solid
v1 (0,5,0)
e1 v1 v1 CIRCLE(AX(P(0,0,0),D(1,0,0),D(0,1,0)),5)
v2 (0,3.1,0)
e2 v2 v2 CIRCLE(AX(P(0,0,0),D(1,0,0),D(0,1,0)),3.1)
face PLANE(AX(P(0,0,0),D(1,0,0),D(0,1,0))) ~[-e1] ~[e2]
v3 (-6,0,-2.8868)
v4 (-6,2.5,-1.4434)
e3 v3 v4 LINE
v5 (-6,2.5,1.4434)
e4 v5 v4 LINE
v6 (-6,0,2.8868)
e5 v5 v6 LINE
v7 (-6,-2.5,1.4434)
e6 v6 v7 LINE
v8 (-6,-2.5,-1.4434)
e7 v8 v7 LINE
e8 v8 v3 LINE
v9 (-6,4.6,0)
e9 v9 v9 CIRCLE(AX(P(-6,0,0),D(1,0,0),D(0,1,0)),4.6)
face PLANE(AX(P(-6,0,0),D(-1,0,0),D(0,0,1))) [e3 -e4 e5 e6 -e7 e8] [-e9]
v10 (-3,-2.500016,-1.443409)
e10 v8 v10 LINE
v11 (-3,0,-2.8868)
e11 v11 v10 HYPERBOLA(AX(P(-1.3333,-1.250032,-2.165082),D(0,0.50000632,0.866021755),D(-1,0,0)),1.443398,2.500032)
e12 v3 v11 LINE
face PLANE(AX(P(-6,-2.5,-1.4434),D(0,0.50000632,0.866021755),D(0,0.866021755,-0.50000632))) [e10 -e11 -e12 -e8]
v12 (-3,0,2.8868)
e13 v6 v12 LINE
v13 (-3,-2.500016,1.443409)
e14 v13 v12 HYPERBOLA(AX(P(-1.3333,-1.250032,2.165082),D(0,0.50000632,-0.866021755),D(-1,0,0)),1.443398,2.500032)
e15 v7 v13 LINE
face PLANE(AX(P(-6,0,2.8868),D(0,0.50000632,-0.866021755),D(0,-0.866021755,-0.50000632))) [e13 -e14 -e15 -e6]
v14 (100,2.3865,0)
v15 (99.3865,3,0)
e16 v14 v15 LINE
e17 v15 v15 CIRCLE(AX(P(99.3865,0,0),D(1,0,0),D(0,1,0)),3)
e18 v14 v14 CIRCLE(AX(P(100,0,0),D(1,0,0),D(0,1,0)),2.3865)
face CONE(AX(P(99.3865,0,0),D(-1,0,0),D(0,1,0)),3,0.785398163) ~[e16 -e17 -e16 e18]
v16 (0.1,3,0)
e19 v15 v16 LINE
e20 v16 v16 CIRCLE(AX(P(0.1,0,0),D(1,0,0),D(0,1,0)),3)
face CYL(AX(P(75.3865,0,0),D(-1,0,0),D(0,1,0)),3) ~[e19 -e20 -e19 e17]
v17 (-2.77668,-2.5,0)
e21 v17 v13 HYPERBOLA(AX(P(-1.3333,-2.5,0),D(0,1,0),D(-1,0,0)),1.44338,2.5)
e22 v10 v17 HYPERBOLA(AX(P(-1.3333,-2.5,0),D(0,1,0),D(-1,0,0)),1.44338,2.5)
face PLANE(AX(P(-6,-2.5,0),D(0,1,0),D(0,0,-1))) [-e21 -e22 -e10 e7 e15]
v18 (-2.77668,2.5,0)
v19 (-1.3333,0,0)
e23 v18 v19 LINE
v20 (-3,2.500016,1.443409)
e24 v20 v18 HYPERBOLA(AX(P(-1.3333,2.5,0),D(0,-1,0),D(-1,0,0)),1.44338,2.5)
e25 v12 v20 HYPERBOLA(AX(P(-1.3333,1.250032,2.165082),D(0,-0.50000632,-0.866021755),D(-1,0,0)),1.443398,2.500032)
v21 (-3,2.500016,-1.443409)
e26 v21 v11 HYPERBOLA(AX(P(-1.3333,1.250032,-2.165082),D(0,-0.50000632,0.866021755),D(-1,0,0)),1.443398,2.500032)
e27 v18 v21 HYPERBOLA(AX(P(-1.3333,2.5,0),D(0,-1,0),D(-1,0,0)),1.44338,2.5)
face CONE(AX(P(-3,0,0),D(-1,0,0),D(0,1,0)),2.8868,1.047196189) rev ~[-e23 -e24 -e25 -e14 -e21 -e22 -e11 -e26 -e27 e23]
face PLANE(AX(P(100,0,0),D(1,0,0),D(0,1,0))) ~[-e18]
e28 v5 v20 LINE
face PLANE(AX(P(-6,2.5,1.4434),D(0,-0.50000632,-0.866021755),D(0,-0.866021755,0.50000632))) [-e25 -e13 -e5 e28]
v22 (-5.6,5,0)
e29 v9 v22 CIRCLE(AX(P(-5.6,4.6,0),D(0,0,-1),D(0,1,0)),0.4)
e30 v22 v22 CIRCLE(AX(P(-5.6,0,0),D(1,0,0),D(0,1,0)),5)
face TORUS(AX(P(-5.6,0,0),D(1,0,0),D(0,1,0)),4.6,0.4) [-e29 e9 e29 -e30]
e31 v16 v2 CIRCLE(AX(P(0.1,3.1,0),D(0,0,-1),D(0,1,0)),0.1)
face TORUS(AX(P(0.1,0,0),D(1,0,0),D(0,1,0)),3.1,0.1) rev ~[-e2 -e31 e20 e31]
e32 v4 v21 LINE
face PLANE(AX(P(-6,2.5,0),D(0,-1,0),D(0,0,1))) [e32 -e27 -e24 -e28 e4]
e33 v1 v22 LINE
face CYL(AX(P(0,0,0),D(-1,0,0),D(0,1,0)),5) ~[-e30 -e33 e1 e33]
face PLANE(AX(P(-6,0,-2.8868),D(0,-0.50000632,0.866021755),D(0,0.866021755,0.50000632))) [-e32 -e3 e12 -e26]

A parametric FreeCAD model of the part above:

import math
import FreeCAD as App
import Part
import Sketcher
from FreeCAD import Vector
Q = App.Units.Quantity


def edges_at(feature, points):
    """Names of the edges that pass closest to the given points."""
    edges = feature.Shape.Edges
    near = lambda p: min(range(len(edges)), key=lambda i: edges[i].distToShape(Part.Vertex(*p))[0])
    return sorted({f"Edge{near(p) + 1}" for p in points})

doc = App.newDocument("Part")
body = doc.addObject("PartDesign::Body", "Body")

sketch1 = body.newObject("Sketcher::SketchObject", "Sketch")
sketch1.AttachmentSupport = (doc.getObject("XY_Plane"), [""])
sketch1.MapMode = "FlatFace"
sketch1.addGeometry(Part.LineSegment(Vector(-3, 2.9, 0), Vector(-1.3, 0, 0)), False)
sketch1.addGeometry(Part.LineSegment(Vector(-1.3, 0, 0), Vector(100, 0, 0)), False)
sketch1.addGeometry(Part.LineSegment(Vector(100, 0, 0), Vector(100, 3, 0)), False)
sketch1.addGeometry(Part.LineSegment(Vector(100, 3, 0), Vector(0, 3, 0)), False)
sketch1.addGeometry(Part.LineSegment(Vector(0, 3, 0), Vector(0, 5, 0)), False)
sketch1.addGeometry(Part.LineSegment(Vector(0, 5, 0), Vector(-6, 5, 0)), False)
sketch1.addGeometry(Part.LineSegment(Vector(-6, 5, 0), Vector(-6, 2.9, 0)), False)
sketch1.addGeometry(Part.LineSegment(Vector(-6, 2.9, 0), Vector(-3, 2.9, 0)), False)
sketch1.addConstraint(Sketcher.Constraint("Coincident", 0, 2, 1, 1))
sketch1.addConstraint(Sketcher.Constraint("Coincident", 1, 2, 2, 1))
sketch1.addConstraint(Sketcher.Constraint("Coincident", 2, 2, 3, 1))
sketch1.addConstraint(Sketcher.Constraint("Coincident", 3, 2, 4, 1))
sketch1.addConstraint(Sketcher.Constraint("Coincident", 4, 2, 5, 1))
sketch1.addConstraint(Sketcher.Constraint("Coincident", 5, 2, 6, 1))
sketch1.addConstraint(Sketcher.Constraint("Coincident", 6, 2, 7, 1))
sketch1.addConstraint(Sketcher.Constraint("Coincident", 7, 2, 0, 1))
sketch1.addConstraint(Sketcher.Constraint("Horizontal", 1))
sketch1.addConstraint(Sketcher.Constraint("Vertical", 2))
sketch1.addConstraint(Sketcher.Constraint("Horizontal", 3))
sketch1.addConstraint(Sketcher.Constraint("Vertical", 4))
sketch1.addConstraint(Sketcher.Constraint("Horizontal", 5))
sketch1.addConstraint(Sketcher.Constraint("Vertical", 6))
sketch1.addConstraint(Sketcher.Constraint("Horizontal", 7))
sketch1.addConstraint(Sketcher.Constraint("PointOnObject", 0, 2, -1))
sketch1.addConstraint(Sketcher.Constraint("PointOnObject", 3, 2, -2))
sketch1.addConstraint(Sketcher.Constraint("Equal", 7, 2))
sketch1.addConstraint(Sketcher.Constraint("DistanceX", 3, 2, 3, 1, 100.0))
sketch1.addConstraint(Sketcher.Constraint("DistanceX", 5, 2, 5, 1, 6.0))
sketch1.addConstraint(Sketcher.Constraint("DistanceX", 7, 1, 7, 2, 3.0))
sketch1.addConstraint(Sketcher.Constraint("Angle", 0, Q("-60 deg")))
sketch1.addConstraint(Sketcher.Constraint("DistanceY", 4, 1, 4, 2, 2.0))
sketch1.addConstraint(Sketcher.Constraint("DistanceX", 1, 1, 1, 2, 101.3333))
revolution = body.newObject("PartDesign::Revolution", "Revolution")
revolution.Profile = sketch1
revolution.ReferenceAxis = (sketch1, ["H_Axis"])
revolution.Angle = 360

sketch2 = body.newObject("Sketcher::SketchObject", "Sketch001")
sketch2.AttachmentSupport = (doc.getObject("YZ_Plane"), [""])
sketch2.MapMode = "FlatFace"
sketch2.AttachmentOffset = App.Placement(Vector(0, 0, -6), App.Rotation())
sketch2.addGeometry(Part.LineSegment(Vector(2.5, 1.4, 0), Vector(0, 2.9, 0)), False)
sketch2.addGeometry(Part.ArcOfCircle(Part.Circle(Vector(0, 0, 0), Vector(0, 0, 1), 2.9), math.radians(30), math.radians(90)), False)
sketch2.addGeometry(Part.ArcOfCircle(Part.Circle(Vector(0, 0, 0), Vector(0, 0, 1), 2.9), math.radians(90), math.radians(150)), False)
sketch2.addGeometry(Part.LineSegment(Vector(0, 2.9, 0), Vector(-2.5, 1.4, 0)), False)
sketch2.addGeometry(Part.ArcOfCircle(Part.Circle(Vector(0, 0, 0), Vector(0, 0, 1), 2.9), math.radians(-30), math.radians(30)), False)
sketch2.addGeometry(Part.LineSegment(Vector(2.5, 1.4, 0), Vector(2.5, -1.4, 0)), False)
sketch2.addGeometry(Part.LineSegment(Vector(-2.5, 1.4, 0), Vector(-2.5, -1.4, 0)), False)
sketch2.addGeometry(Part.ArcOfCircle(Part.Circle(Vector(0, 0, 0), Vector(0, 0, 1), 2.9), math.radians(150), math.radians(210)), False)
sketch2.addGeometry(Part.LineSegment(Vector(-2.5, -1.4, 0), Vector(0, -2.9, 0)), False)
sketch2.addGeometry(Part.ArcOfCircle(Part.Circle(Vector(0, 0, 0), Vector(0, 0, 1), 2.9), math.radians(-150), math.radians(-90)), False)
sketch2.addGeometry(Part.ArcOfCircle(Part.Circle(Vector(0, 0, 0), Vector(0, 0, 1), 2.9), math.radians(-90), math.radians(-30)), False)
sketch2.addGeometry(Part.LineSegment(Vector(0, -2.9, 0), Vector(2.5, -1.4, 0)), False)
sketch2.addConstraint(Sketcher.Constraint("Coincident", 0, 1, 1, 1))
sketch2.addConstraint(Sketcher.Constraint("Coincident", 1, 2, 0, 2))
sketch2.addConstraint(Sketcher.Constraint("Coincident", 2, 1, 3, 1))
sketch2.addConstraint(Sketcher.Constraint("Coincident", 3, 2, 2, 2))
sketch2.addConstraint(Sketcher.Constraint("Coincident", 4, 1, 5, 2))
sketch2.addConstraint(Sketcher.Constraint("Coincident", 5, 1, 4, 2))
sketch2.addConstraint(Sketcher.Constraint("Coincident", 6, 1, 7, 1))
sketch2.addConstraint(Sketcher.Constraint("Coincident", 7, 2, 6, 2))
sketch2.addConstraint(Sketcher.Constraint("Coincident", 8, 1, 9, 1))
sketch2.addConstraint(Sketcher.Constraint("Coincident", 9, 2, 8, 2))
sketch2.addConstraint(Sketcher.Constraint("Coincident", 10, 1, 11, 1))
sketch2.addConstraint(Sketcher.Constraint("Coincident", 11, 2, 10, 2))
sketch2.addConstraint(Sketcher.Constraint("Vertical", 5))
sketch2.addConstraint(Sketcher.Constraint("Vertical", 6))
sketch2.addConstraint(Sketcher.Constraint("Coincident", 1, 3, -1, 1))
sketch2.addConstraint(Sketcher.Constraint("Coincident", 2, 3, -1, 1))
sketch2.addConstraint(Sketcher.Constraint("Coincident", 4, 3, -1, 1))
sketch2.addConstraint(Sketcher.Constraint("Coincident", 7, 3, -1, 1))
sketch2.addConstraint(Sketcher.Constraint("Coincident", 9, 3, -1, 1))
sketch2.addConstraint(Sketcher.Constraint("Coincident", 10, 3, -1, 1))
sketch2.addConstraint(Sketcher.Constraint("Coincident", 2, 1, 1, 2))
sketch2.addConstraint(Sketcher.Constraint("Coincident", 5, 1, 0, 1))
sketch2.addConstraint(Sketcher.Constraint("Coincident", 6, 1, 3, 2))
sketch2.addConstraint(Sketcher.Constraint("Coincident", 8, 1, 7, 2))
sketch2.addConstraint(Sketcher.Constraint("Coincident", 10, 1, 9, 2))
sketch2.addConstraint(Sketcher.Constraint("PointOnObject", 1, 2, -2))
sketch2.addConstraint(Sketcher.Constraint("PointOnObject", 9, 2, -2))
sketch2.addConstraint(Sketcher.Constraint("Parallel", 0, 8))
sketch2.addConstraint(Sketcher.Constraint("Parallel", 3, 11))
sketch2.addConstraint(Sketcher.Constraint("Angle", 0, Q("149.9996 deg")))
sketch2.addConstraint(Sketcher.Constraint("DistanceX", -1, 1, 0, 1, 2.5))
pad1 = body.newObject("PartDesign::Pad", "Pad")
pad1.Profile = sketch2
pad1.Type = "UpToFirst"
doc.recompute()

fillet = body.newObject("PartDesign::Fillet", "Fillet")
fillet.Base = (pad1, edges_at(pad1, [(-6, -5, 0)]))
fillet.Radius = 0.4
doc.recompute()

chamfer = body.newObject("PartDesign::Chamfer", "Chamfer")
chamfer.Base = (fillet, edges_at(fillet, [(100, -3, 0)]))
chamfer.ChamferType = "Two distances"
chamfer.Size = 0.6135
chamfer.Size2 = 0.6135
doc.recompute()

fillet2 = body.newObject("PartDesign::Fillet", "Fillet001")
fillet2.Base = (chamfer, edges_at(chamfer, [(0, -3, 0)]))
fillet2.Radius = 0.1

doc.recompute()
